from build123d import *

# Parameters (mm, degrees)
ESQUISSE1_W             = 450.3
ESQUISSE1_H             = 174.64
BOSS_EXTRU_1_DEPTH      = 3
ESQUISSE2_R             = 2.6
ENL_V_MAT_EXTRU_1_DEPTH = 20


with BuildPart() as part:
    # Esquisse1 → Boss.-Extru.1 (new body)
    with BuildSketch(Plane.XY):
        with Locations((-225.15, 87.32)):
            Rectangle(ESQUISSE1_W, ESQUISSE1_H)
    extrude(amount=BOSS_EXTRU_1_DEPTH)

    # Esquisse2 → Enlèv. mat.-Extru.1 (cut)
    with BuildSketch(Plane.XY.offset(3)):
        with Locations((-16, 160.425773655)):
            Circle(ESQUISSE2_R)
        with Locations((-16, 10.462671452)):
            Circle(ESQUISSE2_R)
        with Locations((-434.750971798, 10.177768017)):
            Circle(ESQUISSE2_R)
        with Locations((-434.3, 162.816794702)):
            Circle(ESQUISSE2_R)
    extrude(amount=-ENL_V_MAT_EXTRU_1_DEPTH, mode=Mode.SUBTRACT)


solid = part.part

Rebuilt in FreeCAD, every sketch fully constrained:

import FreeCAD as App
import Part
import Sketcher

V = App.Vector
Q = App.Units.Quantity


def add_polygon(sketch, points):
    """Adds a closed chain of lines whose ends are joined by coincident constraints."""
    first, n = sketch.GeometryCount, len(points)
    for a, b in zip(points, points[1:] + points[:1]):
        sketch.addGeometry(Part.LineSegment(App.Vector(*a, 0), App.Vector(*b, 0)), False)
    for i in range(n):
        sketch.addConstraint(Sketcher.Constraint("Coincident", first + i, 2, first + (i + 1) % n, 1))

doc = App.newDocument("Part")
params = doc.addObject("Spreadsheet::Sheet", "Params")
for row, (alias, value) in enumerate([
    ("sketch1_width", "450.3 mm"),
    ("sketch1_height", "174.64 mm"),
    ("pad1_length", "3 mm"),
    ("sketch2_diameter", "5.2 mm"),
    ("pocket1_length", "20 mm"),
], start=1):
    params.set(f"A{row}", alias)
    params.set(f"B{row}", "=" + value)
    params.setAlias(f"B{row}", alias)

body = doc.addObject("PartDesign::Body", "Body")

# Sketch on XY plane
sketch1 = body.newObject("Sketcher::SketchObject", "Sketch")
sketch1.AttachmentSupport = (doc.getObject("XY_Plane"), [""])
sketch1.MapMode = "FlatFace"
add_polygon(sketch1, [(-450, 175), (-450, 0), (0, 0), (0, 175)])  # lines 0-3
sketch1.addConstraint(Sketcher.Constraint("Vertical", 0))
sketch1.addConstraint(Sketcher.Constraint("Horizontal", 1))
sketch1.addConstraint(Sketcher.Constraint("Vertical", 2))
sketch1.addConstraint(Sketcher.Constraint("Horizontal", 3))
sketch1.addConstraint(Sketcher.Constraint("Coincident", 1, 2, -1, 1))
sketch1.addConstraint(Sketcher.Constraint("DistanceX", 1, 1, 1, 2, Q("450.3 mm")))
sketch1.addConstraint(Sketcher.Constraint("DistanceY", 0, 2, 0, 1, Q("174.64 mm")))
sketch1.setExpression("Constraints[9]", "Params.sketch1_width")
sketch1.setExpression("Constraints[10]", "Params.sketch1_height")
pad1 = body.newObject("PartDesign::Pad", "Pad")
pad1.Profile = sketch1
pad1.setExpression("Length", "Params.pad1_length")

# Sketch on XY plane
sketch2 = body.newObject("Sketcher::SketchObject", "Sketch001")
sketch2.AttachmentSupport = (doc.getObject("XY_Plane"), [""])
sketch2.MapMode = "FlatFace"
sketch2.AttachmentOffset = App.Placement(V(0, 0, 3), App.Rotation())
sketch2.addGeometry(Part.Circle(V(-16, 160.4, 0), V(0, 0, 1), 2.6), False)
sketch2.addGeometry(Part.Circle(V(-16, 10.5, 0), V(0, 0, 1), 2.6), False)
sketch2.addGeometry(Part.Circle(V(-434.8, 10.2, 0), V(0, 0, 1), 2.6), False)
sketch2.addGeometry(Part.Circle(V(-434.3, 162.8, 0), V(0, 0, 1), 2.6), False)
sketch2.addConstraint(Sketcher.Constraint("Equal", 0, 1))
sketch2.addConstraint(Sketcher.Constraint("Equal", 1, 2))
sketch2.addConstraint(Sketcher.Constraint("Equal", 2, 3))
sketch2.addConstraint(Sketcher.Constraint("Vertical", 0, 3, 1, 3))
sketch2.addConstraint(Sketcher.Constraint("Diameter", 0, Q("5.2 mm")))
sketch2.addConstraint(Sketcher.Constraint("DistanceX", 0, 3, -1, 1, Q("16 mm")))
sketch2.addConstraint(Sketcher.Constraint("DistanceX", 3, 3, -1, 1, Q("434.3 mm")))
sketch2.addConstraint(Sketcher.Constraint("DistanceY", -1, 1, 1, 3, Q("10.462671 mm")))
sketch2.addConstraint(Sketcher.Constraint("DistanceX", 2, 3, -1, 1, Q("434.750972 mm")))
sketch2.addConstraint(Sketcher.Constraint("DistanceY", -1, 1, 2, 3, Q("10.177768 mm")))
sketch2.addConstraint(Sketcher.Constraint("DistanceY", 0, 3, 3, 3, Q("2.391021 mm")))
sketch2.addConstraint(Sketcher.Constraint("DistanceY", -1, 1, 0, 3, Q("160.425774 mm")))
sketch2.setExpression("Constraints[4]", "Params.sketch2_diameter")
pocket1 = body.newObject("PartDesign::Pocket", "Pocket")
pocket1.Profile = sketch2
pocket1.setExpression("Length", "Params.pocket1_length")

doc.recompute()
